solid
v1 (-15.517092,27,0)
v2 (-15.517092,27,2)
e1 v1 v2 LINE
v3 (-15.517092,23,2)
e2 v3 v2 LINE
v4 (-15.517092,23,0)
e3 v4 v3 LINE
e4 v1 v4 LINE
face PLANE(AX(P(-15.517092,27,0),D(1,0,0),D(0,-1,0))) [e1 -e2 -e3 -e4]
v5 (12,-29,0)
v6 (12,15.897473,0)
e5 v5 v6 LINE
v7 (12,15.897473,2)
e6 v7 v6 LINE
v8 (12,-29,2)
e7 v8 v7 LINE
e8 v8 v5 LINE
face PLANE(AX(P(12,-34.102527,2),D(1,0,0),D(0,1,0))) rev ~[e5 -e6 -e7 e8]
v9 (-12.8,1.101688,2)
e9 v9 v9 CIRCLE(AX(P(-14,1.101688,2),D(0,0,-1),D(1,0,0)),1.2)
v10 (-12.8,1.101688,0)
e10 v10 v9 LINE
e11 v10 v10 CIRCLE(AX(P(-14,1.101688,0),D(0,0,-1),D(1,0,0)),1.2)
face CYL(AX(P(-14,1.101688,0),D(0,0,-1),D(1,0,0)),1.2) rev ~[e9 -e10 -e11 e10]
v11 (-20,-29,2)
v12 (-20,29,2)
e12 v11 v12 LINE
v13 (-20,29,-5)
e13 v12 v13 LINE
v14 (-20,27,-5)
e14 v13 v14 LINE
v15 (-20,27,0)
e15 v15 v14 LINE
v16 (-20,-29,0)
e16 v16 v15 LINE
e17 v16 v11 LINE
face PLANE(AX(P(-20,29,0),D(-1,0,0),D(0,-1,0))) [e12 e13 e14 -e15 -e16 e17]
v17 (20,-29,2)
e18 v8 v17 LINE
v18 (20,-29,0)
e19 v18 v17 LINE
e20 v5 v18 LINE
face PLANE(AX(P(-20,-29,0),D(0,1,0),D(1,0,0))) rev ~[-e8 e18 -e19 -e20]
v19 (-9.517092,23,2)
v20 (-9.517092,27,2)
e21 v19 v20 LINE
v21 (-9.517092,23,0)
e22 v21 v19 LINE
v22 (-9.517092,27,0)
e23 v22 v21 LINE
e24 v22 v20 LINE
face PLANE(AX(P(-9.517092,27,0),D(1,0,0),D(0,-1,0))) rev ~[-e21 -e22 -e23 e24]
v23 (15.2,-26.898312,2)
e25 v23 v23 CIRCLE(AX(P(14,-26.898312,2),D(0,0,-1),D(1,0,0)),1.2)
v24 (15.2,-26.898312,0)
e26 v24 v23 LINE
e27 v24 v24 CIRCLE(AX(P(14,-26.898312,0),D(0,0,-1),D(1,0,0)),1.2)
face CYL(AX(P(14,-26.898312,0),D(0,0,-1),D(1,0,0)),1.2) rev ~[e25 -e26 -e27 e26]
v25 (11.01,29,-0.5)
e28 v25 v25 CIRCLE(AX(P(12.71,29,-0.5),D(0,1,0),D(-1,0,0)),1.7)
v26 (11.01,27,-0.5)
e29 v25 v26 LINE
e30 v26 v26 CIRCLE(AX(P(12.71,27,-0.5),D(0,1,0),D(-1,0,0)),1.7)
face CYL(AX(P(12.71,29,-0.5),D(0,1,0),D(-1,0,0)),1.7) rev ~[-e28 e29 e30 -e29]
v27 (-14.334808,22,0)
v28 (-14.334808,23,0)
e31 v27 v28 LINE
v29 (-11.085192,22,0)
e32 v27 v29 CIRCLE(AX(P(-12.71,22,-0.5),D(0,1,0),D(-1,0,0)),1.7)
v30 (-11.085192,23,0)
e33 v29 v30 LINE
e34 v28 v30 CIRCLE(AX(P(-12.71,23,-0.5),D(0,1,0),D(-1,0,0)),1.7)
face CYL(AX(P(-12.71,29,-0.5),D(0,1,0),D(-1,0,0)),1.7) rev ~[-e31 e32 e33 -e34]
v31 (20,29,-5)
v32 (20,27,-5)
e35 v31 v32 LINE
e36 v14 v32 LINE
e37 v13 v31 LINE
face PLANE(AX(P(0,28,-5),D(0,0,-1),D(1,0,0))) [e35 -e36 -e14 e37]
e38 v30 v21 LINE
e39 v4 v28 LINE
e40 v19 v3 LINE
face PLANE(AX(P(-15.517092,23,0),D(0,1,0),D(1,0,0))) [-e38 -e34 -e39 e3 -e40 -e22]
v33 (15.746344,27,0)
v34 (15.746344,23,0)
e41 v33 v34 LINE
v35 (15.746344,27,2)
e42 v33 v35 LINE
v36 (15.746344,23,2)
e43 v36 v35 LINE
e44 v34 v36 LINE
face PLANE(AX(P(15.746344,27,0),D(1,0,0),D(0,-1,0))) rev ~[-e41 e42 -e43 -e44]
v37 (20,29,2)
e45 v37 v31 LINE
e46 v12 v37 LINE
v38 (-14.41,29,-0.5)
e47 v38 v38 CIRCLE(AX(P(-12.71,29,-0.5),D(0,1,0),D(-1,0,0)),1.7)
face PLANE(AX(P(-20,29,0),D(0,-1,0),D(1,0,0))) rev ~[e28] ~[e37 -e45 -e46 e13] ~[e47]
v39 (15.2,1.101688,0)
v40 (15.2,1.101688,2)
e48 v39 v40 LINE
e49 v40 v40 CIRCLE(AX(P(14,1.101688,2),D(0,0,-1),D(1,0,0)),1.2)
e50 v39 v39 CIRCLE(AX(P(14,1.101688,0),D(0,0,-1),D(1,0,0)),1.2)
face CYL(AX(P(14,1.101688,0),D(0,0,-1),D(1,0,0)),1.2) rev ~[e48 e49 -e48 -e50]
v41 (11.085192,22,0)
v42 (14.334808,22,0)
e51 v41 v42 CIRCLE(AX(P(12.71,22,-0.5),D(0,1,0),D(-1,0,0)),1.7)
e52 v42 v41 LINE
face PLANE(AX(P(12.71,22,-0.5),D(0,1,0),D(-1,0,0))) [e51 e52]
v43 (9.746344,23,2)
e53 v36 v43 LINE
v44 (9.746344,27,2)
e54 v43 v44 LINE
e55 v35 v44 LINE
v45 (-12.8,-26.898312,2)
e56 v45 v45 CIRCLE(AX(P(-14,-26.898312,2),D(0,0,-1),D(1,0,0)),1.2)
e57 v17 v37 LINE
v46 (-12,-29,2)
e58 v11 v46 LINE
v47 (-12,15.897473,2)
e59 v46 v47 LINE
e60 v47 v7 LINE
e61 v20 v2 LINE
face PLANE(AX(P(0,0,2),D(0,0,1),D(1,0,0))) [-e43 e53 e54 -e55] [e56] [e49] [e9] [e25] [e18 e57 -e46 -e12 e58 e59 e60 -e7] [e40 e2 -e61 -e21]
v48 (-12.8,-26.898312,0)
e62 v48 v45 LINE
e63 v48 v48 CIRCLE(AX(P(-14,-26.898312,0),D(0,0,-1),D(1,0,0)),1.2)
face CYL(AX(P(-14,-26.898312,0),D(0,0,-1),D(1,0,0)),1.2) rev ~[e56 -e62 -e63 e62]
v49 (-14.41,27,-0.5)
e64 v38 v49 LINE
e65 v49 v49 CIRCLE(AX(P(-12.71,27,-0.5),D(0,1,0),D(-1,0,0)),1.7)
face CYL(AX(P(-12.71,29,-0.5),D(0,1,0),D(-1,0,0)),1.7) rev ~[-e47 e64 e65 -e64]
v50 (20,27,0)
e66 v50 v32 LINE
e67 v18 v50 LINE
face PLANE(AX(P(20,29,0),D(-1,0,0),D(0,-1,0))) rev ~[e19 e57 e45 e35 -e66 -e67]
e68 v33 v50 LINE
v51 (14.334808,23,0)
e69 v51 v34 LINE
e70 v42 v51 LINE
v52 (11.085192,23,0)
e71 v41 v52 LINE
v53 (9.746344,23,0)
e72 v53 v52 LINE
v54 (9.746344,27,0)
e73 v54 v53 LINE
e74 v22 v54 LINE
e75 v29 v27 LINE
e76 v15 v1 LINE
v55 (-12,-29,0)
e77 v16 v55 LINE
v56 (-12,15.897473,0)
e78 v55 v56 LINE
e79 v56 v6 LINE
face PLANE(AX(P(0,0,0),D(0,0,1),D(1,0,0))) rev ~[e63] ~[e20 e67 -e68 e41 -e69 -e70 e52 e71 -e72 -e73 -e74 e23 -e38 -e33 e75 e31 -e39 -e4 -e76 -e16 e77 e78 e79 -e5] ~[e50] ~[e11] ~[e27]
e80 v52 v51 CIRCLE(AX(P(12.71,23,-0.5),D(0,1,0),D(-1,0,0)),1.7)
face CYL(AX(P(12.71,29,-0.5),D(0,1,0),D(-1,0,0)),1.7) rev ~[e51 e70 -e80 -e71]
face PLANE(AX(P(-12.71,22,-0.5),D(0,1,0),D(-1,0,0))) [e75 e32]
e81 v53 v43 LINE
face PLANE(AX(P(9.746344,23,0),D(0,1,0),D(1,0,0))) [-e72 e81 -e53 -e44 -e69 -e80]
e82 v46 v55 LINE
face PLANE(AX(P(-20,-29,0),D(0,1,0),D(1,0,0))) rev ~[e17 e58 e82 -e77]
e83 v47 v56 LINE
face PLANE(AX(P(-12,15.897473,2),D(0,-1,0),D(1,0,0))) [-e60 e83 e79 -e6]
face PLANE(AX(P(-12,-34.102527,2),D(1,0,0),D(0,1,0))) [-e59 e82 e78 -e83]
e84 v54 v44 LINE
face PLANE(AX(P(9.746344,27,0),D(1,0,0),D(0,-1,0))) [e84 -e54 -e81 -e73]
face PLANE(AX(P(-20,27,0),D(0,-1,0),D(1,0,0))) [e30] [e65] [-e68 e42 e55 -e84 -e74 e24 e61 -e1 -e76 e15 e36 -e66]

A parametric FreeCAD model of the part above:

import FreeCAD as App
import Part
import Sketcher
from FreeCAD import Vector
Q = App.Units.Quantity


def add_polygon(sketch, points):
    """Adds a closed chain of lines whose ends are joined by coincident constraints."""
    first, n = sketch.GeometryCount, len(points)
    for a, b in zip(points, points[1:] + points[:1]):
        sketch.addGeometry(Part.LineSegment(App.Vector(*a, 0), App.Vector(*b, 0)), False)
    for i in range(n):
        sketch.addConstraint(Sketcher.Constraint("Coincident", first + i, 2, first + (i + 1) % n, 1))

doc = App.newDocument("Part")
params = doc.addObject("Spreadsheet::Sheet", "Params")
for row, (alias, value) in enumerate([
    ("sketch1_width", "40 mm"),
    ("sketch1_height", "58 mm"),
    ("pad1_length", "2 mm"),
    ("sketch2_width", "24 mm"),
    ("sketch2_height", "50 mm"),
    ("pocket1_length", "5 mm"),
    ("sketch3_width", "40 mm"),
    ("sketch3_height", "2 mm"),
    ("pad2_length", "5 mm"),
    ("sketch4_diameter", "3.4 mm"),
    ("pocket2_length", "7 mm"),
    ("sketch5_diameter", "2.4 mm"),
    ("pocket3_length", "5 mm"),
    ("sketch6_width", "6 mm"),
    ("sketch6_height", "4 mm"),
    ("pocket4_length", "5 mm"),
    ("sketch7_diameter", "2.4 mm"),
    ("pocket5_length", "5 mm"),
], start=1):
    params.set(f"A{row}", alias)
    params.set(f"B{row}", "=" + value)
    params.setAlias(f"B{row}", alias)

body = doc.addObject("PartDesign::Body", "Body")

sketch1 = doc.addObject("Sketcher::SketchObject", "Sketch")
body.addObject(sketch1)
sketch1.AttachmentSupport = (doc.XY_Plane, [""])
sketch1.MapMode = "FlatFace"
add_polygon(sketch1, [(-20, 29), (-20, -29), (20, -29), (20, 29)])
sketch1.addConstraint(Sketcher.Constraint("Vertical", 0))
sketch1.addConstraint(Sketcher.Constraint("Horizontal", 1))
sketch1.addConstraint(Sketcher.Constraint("Vertical", 2))
sketch1.addConstraint(Sketcher.Constraint("Horizontal", 3))
sketch1.addConstraint(Sketcher.Constraint("Symmetric", 0, 2, 2, 2, -1, 1))
sketch1.addConstraint(Sketcher.Constraint("DistanceX", 1, 1, 1, 2, Q("40 mm")))
sketch1.addConstraint(Sketcher.Constraint("DistanceY", 0, 2, 0, 1, Q("58 mm")))
sketch1.setExpression("Constraints[9]", "Params.sketch1_width")
sketch1.setExpression("Constraints[10]", "Params.sketch1_height")
pad1 = doc.addObject("PartDesign::Pad", "Pad")
body.addObject(pad1)
pad1.Profile = sketch1
pad1.setExpression("Length", "Params.pad1_length")

sketch2 = doc.addObject("Sketcher::SketchObject", "Sketch001")
body.addObject(sketch2)
sketch2.AttachmentSupport = (doc.XY_Plane, [""])
sketch2.MapMode = "FlatFace"
sketch2.AttachmentOffset = App.Placement(Vector(0, 0, 2), App.Rotation())
add_polygon(sketch2, [(-12, 16), (-12, -34), (12, -34), (12, 16)])
sketch2.addConstraint(Sketcher.Constraint("Vertical", 0))
sketch2.addConstraint(Sketcher.Constraint("Horizontal", 1))
sketch2.addConstraint(Sketcher.Constraint("Vertical", 2))
sketch2.addConstraint(Sketcher.Constraint("Horizontal", 3))
sketch2.addConstraint(Sketcher.Constraint("DistanceX", 1, 1, 1, 2, Q("24 mm")))
sketch2.addConstraint(Sketcher.Constraint("DistanceY", 0, 2, 0, 1, Q("50 mm")))
sketch2.addConstraint(Sketcher.Constraint("DistanceX", 0, 2, -1, 1, Q("12 mm")))
sketch2.addConstraint(Sketcher.Constraint("DistanceY", 0, 2, -1, 1, Q("34.102527 mm")))
sketch2.setExpression("Constraints[8]", "Params.sketch2_width")
sketch2.setExpression("Constraints[9]", "Params.sketch2_height")
pocket1 = doc.addObject("PartDesign::Pocket", "Pocket")
body.addObject(pocket1)
pocket1.Profile = sketch2
pocket1.setExpression("Length", "Params.pocket1_length")

sketch3 = doc.addObject("Sketcher::SketchObject", "Sketch002")
body.addObject(sketch3)
sketch3.AttachmentSupport = (doc.XY_Plane, [""])
sketch3.MapMode = "FlatFace"
add_polygon(sketch3, [(-20, 27), (-20, 29), (20, 29), (20, 27)])
sketch3.addConstraint(Sketcher.Constraint("Vertical", 0))
sketch3.addConstraint(Sketcher.Constraint("Horizontal", 1))
sketch3.addConstraint(Sketcher.Constraint("Vertical", 2))
sketch3.addConstraint(Sketcher.Constraint("Horizontal", 3))
sketch3.addConstraint(Sketcher.Constraint("DistanceX", 1, 1, 1, 2, Q("40 mm")))
sketch3.addConstraint(Sketcher.Constraint("DistanceY", 0, 1, 0, 2, Q("2 mm")))
sketch3.addConstraint(Sketcher.Constraint("DistanceX", 0, 2, -1, 1, Q("20 mm")))
sketch3.addConstraint(Sketcher.Constraint("DistanceY", -1, 1, 0, 2, Q("29 mm")))
sketch3.setExpression("Constraints[8]", "Params.sketch3_width")
sketch3.setExpression("Constraints[9]", "Params.sketch3_height")
pad2 = doc.addObject("PartDesign::Pad", "Pad001")
body.addObject(pad2)
pad2.Profile = sketch3
pad2.setExpression("Length", "Params.pad2_length")
pad2.Reversed = True

sketch4 = doc.addObject("Sketcher::SketchObject", "Sketch003")
body.addObject(sketch4)
sketch4.AttachmentSupport = (doc.XZ_Plane, [""])
sketch4.MapMode = "FlatFace"
sketch4.AttachmentOffset = App.Placement(Vector(0, 0, -29), App.Rotation())
sketch4.addGeometry(Part.Circle(Vector(12.7, -0.5, 0), Vector(0, 0, 1), 1.7), False)
sketch4.addGeometry(Part.Circle(Vector(-12.7, -0.5, 0), Vector(0, 0, 1), 1.7), False)
sketch4.addConstraint(Sketcher.Constraint("Equal", 0, 1))
sketch4.addConstraint(Sketcher.Constraint("Symmetric", 0, 3, 1, 3, -2))
sketch4.addConstraint(Sketcher.Constraint("Diameter", 0, Q("3.4 mm")))
sketch4.addConstraint(Sketcher.Constraint("DistanceY", 0, 3, -1, 1, Q("0.5 mm")))
sketch4.addConstraint(Sketcher.Constraint("DistanceX", -1, 1, 0, 3, Q("12.71 mm")))
sketch4.setExpression("Constraints[2]", "Params.sketch4_diameter")
pocket2 = doc.addObject("PartDesign::Pocket", "Pocket001")
body.addObject(pocket2)
pocket2.Profile = sketch4
pocket2.setExpression("Length", "Params.pocket2_length")
pocket2.Reversed = True

sketch5 = doc.addObject("Sketcher::SketchObject", "Sketch004")
body.addObject(sketch5)
sketch5.AttachmentSupport = (doc.YZ_Plane, [""])
sketch5.MapMode = "FlatFace"
sketch5.AttachmentOffset = App.Placement(Vector(0, 0, 20), App.Rotation())
sketch5.addGeometry(Part.Circle(Vector(-14, 25, 0), Vector(0, 0, 1), 1.2), False)
sketch5.addGeometry(Part.Circle(Vector(14, 25, 0), Vector(0, 0, 1), 1.2), False)
sketch5.addGeometry(Part.Circle(Vector(14, -3, 0), Vector(0, 0, 1), 1.2), False)
sketch5.addGeometry(Part.Circle(Vector(-14, -3, 0), Vector(0, 0, 1), 1.2), False)
sketch5.addConstraint(Sketcher.Constraint("Equal", 0, 1))
sketch5.addConstraint(Sketcher.Constraint("Equal", 1, 2))
sketch5.addConstraint(Sketcher.Constraint("Equal", 2, 3))
sketch5.addConstraint(Sketcher.Constraint("Symmetric", 0, 3, 1, 3, -2))
sketch5.addConstraint(Sketcher.Constraint("Symmetric", 2, 3, 3, 3, -2))
sketch5.addConstraint(Sketcher.Constraint("Vertical", 1, 3, 2, 3))
sketch5.addConstraint(Sketcher.Constraint("Diameter", 0, Q("2.4 mm")))
sketch5.addConstraint(Sketcher.Constraint("DistanceX", 0, 3, -1, 1, Q("14 mm")))
sketch5.addConstraint(Sketcher.Constraint("DistanceY", -1, 1, 0, 3, Q("25 mm")))
sketch5.addConstraint(Sketcher.Constraint("DistanceY", 2, 3, -1, 1, Q("3 mm")))
sketch5.setExpression("Constraints[6]", "Params.sketch5_diameter")
pocket3 = doc.addObject("PartDesign::Pocket", "Pocket002")
body.addObject(pocket3)
pocket3.Profile = sketch5
pocket3.setExpression("Length", "Params.pocket3_length")

sketch6 = doc.addObject("Sketcher::SketchObject", "Sketch005")
body.addObject(sketch6)
sketch6.AttachmentSupport = (doc.XY_Plane, [""])
sketch6.MapMode = "FlatFace"
add_polygon(sketch6, [(-15.5, 23), (-15.5, 27), (-9.5, 27), (-9.5, 23)])
add_polygon(sketch6, [(9.7, 23), (9.7, 27), (15.7, 27), (15.7, 23)])
sketch6.addConstraint(Sketcher.Constraint("Vertical", 0))
sketch6.addConstraint(Sketcher.Constraint("Horizontal", 1))
sketch6.addConstraint(Sketcher.Constraint("Vertical", 2))
sketch6.addConstraint(Sketcher.Constraint("Horizontal", 3))
sketch6.addConstraint(Sketcher.Constraint("Vertical", 4))
sketch6.addConstraint(Sketcher.Constraint("Horizontal", 5))
sketch6.addConstraint(Sketcher.Constraint("Vertical", 6))
sketch6.addConstraint(Sketcher.Constraint("Horizontal", 7))
sketch6.addConstraint(Sketcher.Constraint("Horizontal", 1, 2, 4, 2))
sketch6.addConstraint(Sketcher.Constraint("Horizontal", 3, 2, 6, 2))
sketch6.addConstraint(Sketcher.Constraint("Equal", 3, 5))
sketch6.addConstraint(Sketcher.Constraint("DistanceX", 1, 1, 1, 2, Q("6 mm")))
sketch6.addConstraint(Sketcher.Constraint("DistanceY", 0, 1, 0, 2, Q("4 mm")))
sketch6.addConstraint(Sketcher.Constraint("DistanceY", -1, 1, 0, 2, Q("27 mm")))
sketch6.addConstraint(Sketcher.Constraint("DistanceX", 0, 2, -1, 1, Q("15.517092 mm")))
sketch6.addConstraint(Sketcher.Constraint("DistanceX", -1, 1, 4, 2, Q("9.746344 mm")))
sketch6.setExpression("Constraints[19]", "Params.sketch6_width")
sketch6.setExpression("Constraints[20]", "Params.sketch6_height")
pocket4 = doc.addObject("PartDesign::Pocket", "Pocket003")
body.addObject(pocket4)
pocket4.Profile = sketch6
pocket4.setExpression("Length", "Params.pocket4_length")
pocket4.Reversed = True

sketch7 = doc.addObject("Sketcher::SketchObject", "Sketch006")
body.addObject(sketch7)
sketch7.AttachmentSupport = (doc.XY_Plane, [""])
sketch7.MapMode = "FlatFace"
sketch7.addGeometry(Part.Circle(Vector(-14, -26.9, 0), Vector(0, 0, 1), 1.2), False)
sketch7.addGeometry(Part.Circle(Vector(14, -26.9, 0), Vector(0, 0, 1), 1.2), False)
sketch7.addGeometry(Part.Circle(Vector(14, 1.1, 0), Vector(0, 0, 1), 1.2), False)
sketch7.addGeometry(Part.Circle(Vector(-14, 1.1, 0), Vector(0, 0, 1), 1.2), False)
sketch7.addConstraint(Sketcher.Constraint("Equal", 0, 1))
sketch7.addConstraint(Sketcher.Constraint("Equal", 1, 2))
sketch7.addConstraint(Sketcher.Constraint("Equal", 2, 3))
sketch7.addConstraint(Sketcher.Constraint("Symmetric", 0, 3, 1, 3, -2))
sketch7.addConstraint(Sketcher.Constraint("Symmetric", 2, 3, 3, 3, -2))
sketch7.addConstraint(Sketcher.Constraint("Vertical", 1, 3, 2, 3))
sketch7.addConstraint(Sketcher.Constraint("Diameter", 0, Q("2.4 mm")))
sketch7.addConstraint(Sketcher.Constraint("DistanceX", 0, 3, -1, 1, Q("14 mm")))
sketch7.addConstraint(Sketcher.Constraint("DistanceY", 1, 3, 2, 3, Q("28 mm")))
sketch7.addConstraint(Sketcher.Constraint("DistanceY", 0, 3, -1, 1, Q("26.898312 mm")))
sketch7.setExpression("Constraints[6]", "Params.sketch7_diameter")
pocket5 = doc.addObject("PartDesign::Pocket", "Pocket004")
body.addObject(pocket5)
pocket5.Profile = sketch7
pocket5.setExpression("Length", "Params.pocket5_length")
pocket5.Reversed = True

doc.recompute()
